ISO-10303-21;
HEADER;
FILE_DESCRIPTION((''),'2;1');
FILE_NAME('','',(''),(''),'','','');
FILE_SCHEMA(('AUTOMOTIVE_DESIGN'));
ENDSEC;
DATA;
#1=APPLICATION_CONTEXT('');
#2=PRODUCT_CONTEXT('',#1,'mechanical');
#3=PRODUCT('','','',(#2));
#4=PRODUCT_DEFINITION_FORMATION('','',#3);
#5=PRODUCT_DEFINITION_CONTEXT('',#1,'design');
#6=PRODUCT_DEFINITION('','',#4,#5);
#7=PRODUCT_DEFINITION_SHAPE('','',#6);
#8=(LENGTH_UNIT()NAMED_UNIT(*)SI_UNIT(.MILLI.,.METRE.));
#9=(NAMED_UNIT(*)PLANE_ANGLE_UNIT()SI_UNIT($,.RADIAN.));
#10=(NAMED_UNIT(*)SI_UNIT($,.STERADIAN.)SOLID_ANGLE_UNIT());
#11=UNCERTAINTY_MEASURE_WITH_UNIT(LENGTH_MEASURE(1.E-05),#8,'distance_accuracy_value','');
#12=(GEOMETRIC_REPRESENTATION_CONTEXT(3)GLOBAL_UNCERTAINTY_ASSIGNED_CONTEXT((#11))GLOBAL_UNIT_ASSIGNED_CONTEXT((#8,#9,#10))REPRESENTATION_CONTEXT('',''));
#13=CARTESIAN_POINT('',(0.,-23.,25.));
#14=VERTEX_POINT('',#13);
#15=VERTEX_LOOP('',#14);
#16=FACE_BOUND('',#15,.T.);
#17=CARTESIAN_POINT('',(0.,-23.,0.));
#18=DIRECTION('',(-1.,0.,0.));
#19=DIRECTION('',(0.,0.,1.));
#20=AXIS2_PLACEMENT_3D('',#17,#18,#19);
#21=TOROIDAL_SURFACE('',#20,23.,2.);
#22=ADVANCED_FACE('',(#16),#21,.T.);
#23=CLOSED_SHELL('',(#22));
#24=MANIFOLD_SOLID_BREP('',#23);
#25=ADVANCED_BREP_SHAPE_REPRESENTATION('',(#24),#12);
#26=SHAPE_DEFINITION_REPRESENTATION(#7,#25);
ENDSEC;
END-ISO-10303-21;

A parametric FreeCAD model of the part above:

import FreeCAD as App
import Part
import Sketcher
from FreeCAD import Vector
Q = App.Units.Quantity

doc = App.newDocument("Part")
body = doc.addObject("PartDesign::Body", "Body")

# Sketch on XY plane
sketch1 = doc.addObject("Sketcher::SketchObject", "Sketch")
body.addObject(sketch1)
sketch1.AttachmentSupport = (doc.XY_Plane, [""])
sketch1.MapMode = "FlatFace"
sketch1.addGeometry(Part.Circle(Vector(0, 0, 0), Vector(0, 0, 1), 2), False)
sketch1.addGeometry(Part.LineSegment(Vector(0, -23, 0), Vector(10, -23, 0)), True)  # axis
sketch1.addConstraint(Sketcher.Constraint("Horizontal", 1))
sketch1.addConstraint(Sketcher.Constraint("Coincident", 0, 3, -1, 1))
sketch1.addConstraint(Sketcher.Constraint("PointOnObject", 1, 1, -2))
sketch1.addConstraint(Sketcher.Constraint("Diameter", 0, Q("4 mm")))
sketch1.addConstraint(Sketcher.Constraint("DistanceX", 1, 1, 1, 2, Q("10 mm")))
sketch1.addConstraint(Sketcher.Constraint("DistanceY", 1, 1, -1, 1, Q("23 mm")))
revolution = doc.addObject("PartDesign::Revolution", "Revolution")
body.addObject(revolution)
revolution.Profile = sketch1
revolution.ReferenceAxis = (sketch1, ["Axis0"])
revolution.Angle = 360

doc.recompute()
